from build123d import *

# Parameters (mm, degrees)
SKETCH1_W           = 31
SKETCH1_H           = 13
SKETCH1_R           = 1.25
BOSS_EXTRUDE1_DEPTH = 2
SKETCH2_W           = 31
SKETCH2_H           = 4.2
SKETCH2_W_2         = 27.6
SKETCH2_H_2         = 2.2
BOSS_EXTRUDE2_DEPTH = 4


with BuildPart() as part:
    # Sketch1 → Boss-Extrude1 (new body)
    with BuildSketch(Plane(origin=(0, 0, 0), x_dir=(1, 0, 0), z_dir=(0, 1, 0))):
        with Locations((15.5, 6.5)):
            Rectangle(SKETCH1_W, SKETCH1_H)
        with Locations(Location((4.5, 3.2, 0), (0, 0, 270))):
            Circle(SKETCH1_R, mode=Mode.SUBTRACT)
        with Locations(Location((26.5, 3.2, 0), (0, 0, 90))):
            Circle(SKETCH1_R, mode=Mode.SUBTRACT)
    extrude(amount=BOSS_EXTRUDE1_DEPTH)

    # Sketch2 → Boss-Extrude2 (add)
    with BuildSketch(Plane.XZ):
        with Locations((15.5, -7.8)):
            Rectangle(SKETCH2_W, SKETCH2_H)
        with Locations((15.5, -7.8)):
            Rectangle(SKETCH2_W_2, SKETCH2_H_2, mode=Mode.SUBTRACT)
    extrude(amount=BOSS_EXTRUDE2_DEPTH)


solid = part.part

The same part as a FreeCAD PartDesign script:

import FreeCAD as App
import Part
import Sketcher

doc = App.newDocument("Part")
params = doc.addObject("Spreadsheet::Sheet", "Params")
for row, (alias, value) in enumerate([
    ("sketch1_diameter", "2.5 mm"),
    ("sketch1_width", "31 mm"),
    ("sketch1_height", "13 mm"),
    ("pad1_length", "2 mm"),
    ("sketch2_width", "31 mm"),
    ("sketch2_width2", "27.6 mm"),
    ("sketch2_height", "4.2 mm"),
    ("sketch2_height2", "2.2 mm"),
    ("pad2_length", "4 mm"),
], start=1):
    params.set(f"A{row}", alias)
    params.set(f"B{row}", "=" + value)
    params.setAlias(f"B{row}", alias)

body = doc.addObject("PartDesign::Body", "Body")

sketch1 = body.newObject("Sketcher::SketchObject", "Sketch")
sketch1.AttachmentSupport = (doc.getObject("XZ_Plane"), [""])
sketch1.MapMode = "FlatFace"
sketch1.addGeometry([
    Part.LineSegment(App.Vector(0, -13, 0), App.Vector(0, 0, 0)),
    Part.LineSegment(App.Vector(0, 0, 0), App.Vector(31, 0, 0)),
    Part.LineSegment(App.Vector(31, 0, 0), App.Vector(31, -13, 0)),
    Part.LineSegment(App.Vector(31, -13, 0), App.Vector(0, -13, 0)),
    Part.Circle(App.Vector(4.5, -3.2, 0), App.Vector(0, 0, 1), 1.2),
    Part.Circle(App.Vector(26.5, -3.2, 0), App.Vector(0, 0, 1), 1.2),
], False)
sketch1.addConstraint([
    Sketcher.Constraint("Coincident", 0, 2, 1, 1),
    Sketcher.Constraint("Coincident", 1, 2, 2, 1),
    Sketcher.Constraint("Coincident", 2, 2, 3, 1),
    Sketcher.Constraint("Coincident", 3, 2, 0, 1),
    Sketcher.Constraint("Vertical", 0),
    Sketcher.Constraint("Horizontal", 1),
    Sketcher.Constraint("Vertical", 2),
    Sketcher.Constraint("Horizontal", 3),
    Sketcher.Constraint("Coincident", 0, 2, -1, 1),
    Sketcher.Constraint("Equal", 4, 5),
    Sketcher.Constraint("Horizontal", 4, 3, 5, 3),
    Sketcher.Constraint("Diameter", 4, 2.5),
    Sketcher.Constraint("DistanceX", 1, 1, 1, 2, 31.0),
    Sketcher.Constraint("DistanceY", 0, 1, 0, 2, 13.0),
    Sketcher.Constraint("DistanceX", 4, 3, 5, 3, 22.0),
    Sketcher.Constraint("DistanceX", -1, 1, 4, 3, 4.5),
    Sketcher.Constraint("DistanceY", 4, 3, -1, 1, 3.2),
])
sketch1.setExpression("Constraints[11]", "Params.sketch1_diameter")
sketch1.setExpression("Constraints[12]", "Params.sketch1_width")
sketch1.setExpression("Constraints[13]", "Params.sketch1_height")
pad1 = body.newObject("PartDesign::Pad", "Pad")
pad1.Profile = sketch1
pad1.setExpression("Length", "Params.pad1_length")
pad1.Reversed = True

sketch2 = body.newObject("Sketcher::SketchObject", "Sketch001")
sketch2.AttachmentSupport = (doc.getObject("XZ_Plane"), [""])
sketch2.MapMode = "FlatFace"
sketch2.addGeometry([
    Part.LineSegment(App.Vector(0, -5.7, 0), App.Vector(0, -9.9, 0)),
    Part.LineSegment(App.Vector(0, -9.9, 0), App.Vector(31, -9.9, 0)),
    Part.LineSegment(App.Vector(31, -9.9, 0), App.Vector(31, -5.7, 0)),
    Part.LineSegment(App.Vector(31, -5.7, 0), App.Vector(0, -5.7, 0)),
    Part.LineSegment(App.Vector(29.3, -8.9, 0), App.Vector(1.7, -8.9, 0)),
    Part.LineSegment(App.Vector(1.7, -8.9, 0), App.Vector(1.7, -6.7, 0)),
    Part.LineSegment(App.Vector(1.7, -6.7, 0), App.Vector(29.3, -6.7, 0)),
    Part.LineSegment(App.Vector(29.3, -6.7, 0), App.Vector(29.3, -8.9, 0)),
], False)
sketch2.addConstraint([
    Sketcher.Constraint("Coincident", 0, 2, 1, 1),
    Sketcher.Constraint("Coincident", 1, 2, 2, 1),
    Sketcher.Constraint("Coincident", 2, 2, 3, 1),
    Sketcher.Constraint("Coincident", 3, 2, 0, 1),
    Sketcher.Constraint("Coincident", 4, 2, 5, 1),
    Sketcher.Constraint("Coincident", 5, 2, 6, 1),
    Sketcher.Constraint("Coincident", 6, 2, 7, 1),
    Sketcher.Constraint("Coincident", 7, 2, 4, 1),
    Sketcher.Constraint("Vertical", 0),
    Sketcher.Constraint("Horizontal", 1),
    Sketcher.Constraint("Vertical", 2),
    Sketcher.Constraint("Horizontal", 3),
    Sketcher.Constraint("Horizontal", 4),
    Sketcher.Constraint("Vertical", 5),
    Sketcher.Constraint("Horizontal", 6),
    Sketcher.Constraint("Vertical", 7),
    Sketcher.Constraint("PointOnObject", 0, 2, -2),
    Sketcher.Constraint("DistanceX", 1, 1, 1, 2, 31.0),
    Sketcher.Constraint("DistanceX", 4, 2, 4, 1, 27.6),
    Sketcher.Constraint("DistanceY", 0, 2, 0, 1, 4.2),
    Sketcher.Constraint("DistanceY", 5, 1, 5, 2, 2.2),
    Sketcher.Constraint("DistanceY", 0, 2, 4, 2, 1.0),
    Sketcher.Constraint("DistanceY", 0, 2, -1, 1, 9.9),
    Sketcher.Constraint("DistanceX", -1, 1, 4, 2, 1.7),
])
sketch2.setExpression("Constraints[17]", "Params.sketch2_width")
sketch2.setExpression("Constraints[18]", "Params.sketch2_width2")
sketch2.setExpression("Constraints[19]", "Params.sketch2_height")
sketch2.setExpression("Constraints[20]", "Params.sketch2_height2")
pad2 = body.newObject("PartDesign::Pad", "Pad001")
pad2.Profile = sketch2
pad2.setExpression("Length", "Params.pad2_length")

doc.recompute()
